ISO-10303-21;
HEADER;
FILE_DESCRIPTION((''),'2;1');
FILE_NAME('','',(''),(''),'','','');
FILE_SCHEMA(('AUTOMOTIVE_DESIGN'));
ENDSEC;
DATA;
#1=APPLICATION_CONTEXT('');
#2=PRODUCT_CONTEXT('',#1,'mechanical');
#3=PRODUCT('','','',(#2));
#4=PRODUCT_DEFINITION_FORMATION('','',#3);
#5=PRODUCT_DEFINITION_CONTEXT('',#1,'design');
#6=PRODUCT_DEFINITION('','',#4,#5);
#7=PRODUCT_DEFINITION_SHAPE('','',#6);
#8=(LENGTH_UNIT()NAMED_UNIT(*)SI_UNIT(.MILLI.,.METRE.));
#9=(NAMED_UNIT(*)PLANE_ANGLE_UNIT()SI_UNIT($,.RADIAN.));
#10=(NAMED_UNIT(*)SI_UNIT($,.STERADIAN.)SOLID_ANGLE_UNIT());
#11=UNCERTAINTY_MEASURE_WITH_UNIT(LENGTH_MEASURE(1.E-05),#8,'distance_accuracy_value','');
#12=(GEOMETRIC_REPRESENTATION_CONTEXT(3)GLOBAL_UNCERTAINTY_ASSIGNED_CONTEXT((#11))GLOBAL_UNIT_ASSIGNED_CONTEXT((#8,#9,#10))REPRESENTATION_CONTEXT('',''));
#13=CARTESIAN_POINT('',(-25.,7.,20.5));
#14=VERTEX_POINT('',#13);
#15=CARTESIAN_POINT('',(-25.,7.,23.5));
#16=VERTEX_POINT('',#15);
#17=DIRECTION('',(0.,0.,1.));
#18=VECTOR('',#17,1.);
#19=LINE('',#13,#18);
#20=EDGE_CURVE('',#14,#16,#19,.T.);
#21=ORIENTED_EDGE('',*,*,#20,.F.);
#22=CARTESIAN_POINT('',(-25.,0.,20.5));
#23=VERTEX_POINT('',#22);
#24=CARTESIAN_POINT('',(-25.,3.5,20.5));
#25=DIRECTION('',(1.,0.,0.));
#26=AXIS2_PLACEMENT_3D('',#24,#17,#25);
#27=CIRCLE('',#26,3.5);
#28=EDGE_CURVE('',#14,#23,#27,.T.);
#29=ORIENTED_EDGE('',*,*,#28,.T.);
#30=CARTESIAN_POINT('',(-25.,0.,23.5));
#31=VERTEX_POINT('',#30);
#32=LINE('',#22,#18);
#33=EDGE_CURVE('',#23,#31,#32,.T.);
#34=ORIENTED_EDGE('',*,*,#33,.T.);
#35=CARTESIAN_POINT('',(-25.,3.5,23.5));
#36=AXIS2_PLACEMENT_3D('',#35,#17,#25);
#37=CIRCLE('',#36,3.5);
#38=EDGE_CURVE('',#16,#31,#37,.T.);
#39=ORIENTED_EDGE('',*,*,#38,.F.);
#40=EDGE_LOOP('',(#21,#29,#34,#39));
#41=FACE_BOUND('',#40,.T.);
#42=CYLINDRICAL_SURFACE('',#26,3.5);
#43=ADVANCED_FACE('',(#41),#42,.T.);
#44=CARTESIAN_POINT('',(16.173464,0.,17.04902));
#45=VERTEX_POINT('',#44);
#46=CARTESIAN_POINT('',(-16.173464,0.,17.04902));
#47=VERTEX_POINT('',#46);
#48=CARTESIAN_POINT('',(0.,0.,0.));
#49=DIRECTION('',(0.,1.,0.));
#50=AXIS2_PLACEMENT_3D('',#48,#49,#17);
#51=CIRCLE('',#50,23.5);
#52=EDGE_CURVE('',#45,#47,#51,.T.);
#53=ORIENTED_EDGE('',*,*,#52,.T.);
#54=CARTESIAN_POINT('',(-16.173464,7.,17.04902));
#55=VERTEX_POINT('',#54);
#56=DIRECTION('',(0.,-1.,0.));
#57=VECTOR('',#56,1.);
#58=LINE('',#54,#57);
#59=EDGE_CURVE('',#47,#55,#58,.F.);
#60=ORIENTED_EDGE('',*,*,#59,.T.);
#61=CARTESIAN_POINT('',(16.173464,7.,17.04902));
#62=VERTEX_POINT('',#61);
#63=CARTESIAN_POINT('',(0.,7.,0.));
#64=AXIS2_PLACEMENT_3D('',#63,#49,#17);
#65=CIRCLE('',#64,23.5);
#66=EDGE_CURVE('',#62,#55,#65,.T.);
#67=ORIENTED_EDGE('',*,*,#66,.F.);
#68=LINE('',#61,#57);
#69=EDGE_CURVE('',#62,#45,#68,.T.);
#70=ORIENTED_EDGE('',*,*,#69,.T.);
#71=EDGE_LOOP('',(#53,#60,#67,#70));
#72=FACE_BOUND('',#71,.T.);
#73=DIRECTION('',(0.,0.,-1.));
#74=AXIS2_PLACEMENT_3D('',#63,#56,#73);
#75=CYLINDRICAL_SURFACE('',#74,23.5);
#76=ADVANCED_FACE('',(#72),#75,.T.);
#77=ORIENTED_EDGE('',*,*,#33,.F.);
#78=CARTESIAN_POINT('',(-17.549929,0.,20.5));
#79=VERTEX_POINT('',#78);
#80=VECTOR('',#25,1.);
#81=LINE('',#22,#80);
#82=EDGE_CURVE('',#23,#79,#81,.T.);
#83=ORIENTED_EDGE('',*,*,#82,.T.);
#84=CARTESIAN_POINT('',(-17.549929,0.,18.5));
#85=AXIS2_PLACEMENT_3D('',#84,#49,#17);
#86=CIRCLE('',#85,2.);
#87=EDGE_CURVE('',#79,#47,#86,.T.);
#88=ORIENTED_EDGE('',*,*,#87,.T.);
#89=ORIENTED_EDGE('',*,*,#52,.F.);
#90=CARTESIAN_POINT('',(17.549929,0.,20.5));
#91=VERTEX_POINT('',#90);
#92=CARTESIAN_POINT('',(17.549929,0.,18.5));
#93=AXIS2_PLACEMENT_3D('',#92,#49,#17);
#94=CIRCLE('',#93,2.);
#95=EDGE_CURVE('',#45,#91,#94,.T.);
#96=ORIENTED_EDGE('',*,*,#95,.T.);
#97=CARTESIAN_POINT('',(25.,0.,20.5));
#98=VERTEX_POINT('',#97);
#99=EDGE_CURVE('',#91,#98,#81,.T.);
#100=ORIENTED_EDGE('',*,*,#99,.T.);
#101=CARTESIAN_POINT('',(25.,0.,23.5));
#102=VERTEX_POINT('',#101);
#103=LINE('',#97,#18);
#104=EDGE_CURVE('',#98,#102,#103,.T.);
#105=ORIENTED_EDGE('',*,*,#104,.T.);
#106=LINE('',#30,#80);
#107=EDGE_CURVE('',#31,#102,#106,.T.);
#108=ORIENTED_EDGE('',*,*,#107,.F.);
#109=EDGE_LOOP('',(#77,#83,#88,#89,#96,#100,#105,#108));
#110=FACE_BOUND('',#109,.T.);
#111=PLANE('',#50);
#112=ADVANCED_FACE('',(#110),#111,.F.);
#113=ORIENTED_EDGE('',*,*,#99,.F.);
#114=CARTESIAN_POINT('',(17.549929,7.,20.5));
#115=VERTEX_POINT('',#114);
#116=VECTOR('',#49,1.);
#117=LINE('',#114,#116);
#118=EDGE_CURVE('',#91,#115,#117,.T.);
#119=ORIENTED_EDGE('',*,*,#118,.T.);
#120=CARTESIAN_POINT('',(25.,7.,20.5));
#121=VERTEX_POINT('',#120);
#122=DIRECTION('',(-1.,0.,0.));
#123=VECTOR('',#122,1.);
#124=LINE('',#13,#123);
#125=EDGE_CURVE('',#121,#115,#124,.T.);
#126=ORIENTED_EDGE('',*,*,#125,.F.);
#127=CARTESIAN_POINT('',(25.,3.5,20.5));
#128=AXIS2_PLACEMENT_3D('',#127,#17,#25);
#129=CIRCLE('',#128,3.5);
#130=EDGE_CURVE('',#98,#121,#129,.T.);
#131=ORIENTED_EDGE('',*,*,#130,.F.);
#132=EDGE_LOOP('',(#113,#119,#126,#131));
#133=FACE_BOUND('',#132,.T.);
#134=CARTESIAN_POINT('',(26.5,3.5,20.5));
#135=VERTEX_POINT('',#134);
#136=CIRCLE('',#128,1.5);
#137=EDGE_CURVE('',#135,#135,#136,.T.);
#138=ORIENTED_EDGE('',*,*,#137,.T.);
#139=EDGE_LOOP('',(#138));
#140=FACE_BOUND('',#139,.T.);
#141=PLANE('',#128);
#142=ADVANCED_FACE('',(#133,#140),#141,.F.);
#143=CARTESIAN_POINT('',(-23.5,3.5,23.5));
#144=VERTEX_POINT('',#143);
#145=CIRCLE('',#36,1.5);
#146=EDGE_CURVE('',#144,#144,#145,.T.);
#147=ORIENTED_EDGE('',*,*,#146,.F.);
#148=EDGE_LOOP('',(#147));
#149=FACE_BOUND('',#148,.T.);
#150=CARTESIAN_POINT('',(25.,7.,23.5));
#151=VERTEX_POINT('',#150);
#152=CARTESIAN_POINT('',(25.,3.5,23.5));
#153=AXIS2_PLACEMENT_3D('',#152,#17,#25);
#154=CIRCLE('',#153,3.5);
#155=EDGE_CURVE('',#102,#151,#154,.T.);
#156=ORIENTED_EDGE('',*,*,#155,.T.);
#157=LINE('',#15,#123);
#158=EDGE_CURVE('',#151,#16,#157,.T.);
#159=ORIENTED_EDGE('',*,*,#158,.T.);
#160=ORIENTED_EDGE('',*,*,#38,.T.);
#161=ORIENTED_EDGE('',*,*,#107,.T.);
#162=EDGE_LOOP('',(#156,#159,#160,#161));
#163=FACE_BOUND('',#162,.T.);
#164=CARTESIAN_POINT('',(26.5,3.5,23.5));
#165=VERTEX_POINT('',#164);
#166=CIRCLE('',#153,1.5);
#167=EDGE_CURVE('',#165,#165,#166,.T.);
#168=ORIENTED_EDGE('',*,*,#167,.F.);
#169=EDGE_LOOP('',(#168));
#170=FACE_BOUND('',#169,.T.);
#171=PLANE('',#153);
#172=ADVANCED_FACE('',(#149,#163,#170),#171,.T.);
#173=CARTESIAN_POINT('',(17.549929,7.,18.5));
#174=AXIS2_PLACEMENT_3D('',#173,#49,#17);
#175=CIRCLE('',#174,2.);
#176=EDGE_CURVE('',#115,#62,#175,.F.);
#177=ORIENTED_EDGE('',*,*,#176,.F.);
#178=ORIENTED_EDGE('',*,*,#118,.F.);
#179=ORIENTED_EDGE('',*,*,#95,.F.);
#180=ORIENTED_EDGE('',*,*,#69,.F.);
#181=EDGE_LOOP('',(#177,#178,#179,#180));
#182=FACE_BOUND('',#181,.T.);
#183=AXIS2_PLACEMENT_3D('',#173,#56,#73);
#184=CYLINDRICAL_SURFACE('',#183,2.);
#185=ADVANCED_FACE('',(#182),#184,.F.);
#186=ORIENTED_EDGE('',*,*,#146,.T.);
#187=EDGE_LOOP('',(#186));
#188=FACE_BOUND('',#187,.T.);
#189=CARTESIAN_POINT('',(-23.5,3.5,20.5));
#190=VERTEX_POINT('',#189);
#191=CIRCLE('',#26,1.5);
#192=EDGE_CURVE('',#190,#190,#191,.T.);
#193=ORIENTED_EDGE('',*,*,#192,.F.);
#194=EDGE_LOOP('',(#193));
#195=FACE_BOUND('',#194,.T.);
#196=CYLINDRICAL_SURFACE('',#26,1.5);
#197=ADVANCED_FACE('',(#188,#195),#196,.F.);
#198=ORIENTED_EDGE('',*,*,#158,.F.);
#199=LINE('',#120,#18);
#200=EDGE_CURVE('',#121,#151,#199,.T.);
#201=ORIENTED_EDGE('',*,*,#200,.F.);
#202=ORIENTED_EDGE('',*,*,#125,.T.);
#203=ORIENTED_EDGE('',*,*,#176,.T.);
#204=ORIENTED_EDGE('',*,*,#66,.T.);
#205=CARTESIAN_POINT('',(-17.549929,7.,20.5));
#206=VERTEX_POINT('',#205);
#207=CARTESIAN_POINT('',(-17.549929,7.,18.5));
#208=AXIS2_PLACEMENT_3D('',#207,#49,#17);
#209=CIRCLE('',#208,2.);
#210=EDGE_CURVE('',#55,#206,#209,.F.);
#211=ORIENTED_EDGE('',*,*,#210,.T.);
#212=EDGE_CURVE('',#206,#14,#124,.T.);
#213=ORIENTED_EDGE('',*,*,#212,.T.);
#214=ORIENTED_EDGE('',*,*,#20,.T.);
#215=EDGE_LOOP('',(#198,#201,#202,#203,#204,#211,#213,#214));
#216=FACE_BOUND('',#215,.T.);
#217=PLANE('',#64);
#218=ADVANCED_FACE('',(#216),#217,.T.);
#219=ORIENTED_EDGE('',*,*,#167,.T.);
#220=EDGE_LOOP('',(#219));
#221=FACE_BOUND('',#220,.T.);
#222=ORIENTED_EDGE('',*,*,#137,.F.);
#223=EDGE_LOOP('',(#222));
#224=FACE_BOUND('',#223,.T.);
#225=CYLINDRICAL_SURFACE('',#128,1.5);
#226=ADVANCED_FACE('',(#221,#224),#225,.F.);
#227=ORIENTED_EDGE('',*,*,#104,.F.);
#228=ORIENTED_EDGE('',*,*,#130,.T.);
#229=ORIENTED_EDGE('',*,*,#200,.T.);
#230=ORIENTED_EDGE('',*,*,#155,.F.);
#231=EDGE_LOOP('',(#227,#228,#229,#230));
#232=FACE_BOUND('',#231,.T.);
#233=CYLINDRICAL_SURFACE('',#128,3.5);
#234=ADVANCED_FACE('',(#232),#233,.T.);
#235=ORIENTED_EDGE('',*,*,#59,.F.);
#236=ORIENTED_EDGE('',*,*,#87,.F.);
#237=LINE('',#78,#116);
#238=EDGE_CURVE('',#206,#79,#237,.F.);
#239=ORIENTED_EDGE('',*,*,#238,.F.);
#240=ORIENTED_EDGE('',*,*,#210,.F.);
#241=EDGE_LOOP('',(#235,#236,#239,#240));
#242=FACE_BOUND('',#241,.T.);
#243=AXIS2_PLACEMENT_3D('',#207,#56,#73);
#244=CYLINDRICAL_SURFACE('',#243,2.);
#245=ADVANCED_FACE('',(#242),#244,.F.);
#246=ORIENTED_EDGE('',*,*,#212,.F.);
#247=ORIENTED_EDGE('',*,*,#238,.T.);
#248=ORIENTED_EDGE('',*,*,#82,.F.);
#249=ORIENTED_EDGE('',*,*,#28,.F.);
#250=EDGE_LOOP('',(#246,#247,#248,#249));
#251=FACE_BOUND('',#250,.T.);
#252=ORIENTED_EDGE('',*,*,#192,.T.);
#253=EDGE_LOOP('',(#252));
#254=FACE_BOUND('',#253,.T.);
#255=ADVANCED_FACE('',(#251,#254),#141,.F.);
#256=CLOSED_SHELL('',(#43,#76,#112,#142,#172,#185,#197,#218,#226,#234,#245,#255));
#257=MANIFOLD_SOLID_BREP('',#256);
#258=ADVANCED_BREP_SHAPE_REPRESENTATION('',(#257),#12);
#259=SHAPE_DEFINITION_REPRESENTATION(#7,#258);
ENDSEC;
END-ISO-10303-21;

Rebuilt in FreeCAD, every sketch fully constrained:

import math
import FreeCAD as App
import Part
import Sketcher


def edges_at(feature, points):
    """Names of the edges that pass closest to the given points."""
    edges = feature.Shape.Edges
    near = lambda p: min(range(len(edges)), key=lambda i: edges[i].distToShape(Part.Vertex(*p))[0])
    return sorted({f"Edge{near(p) + 1}" for p in points})

doc = App.newDocument("Part")
body = doc.addObject("PartDesign::Body", "Body")

# Sketch on XZ plane
sketch1 = body.newObject("Sketcher::SketchObject", "Sketch")
sketch1.AttachmentSupport = (doc.getObject("XZ_Plane"), [""])
sketch1.MapMode = "FlatFace"
sketch1.addGeometry(Part.Circle(App.Vector(0, 0, 0), App.Vector(0, 0, 1), 23.5), False)
sketch1.addConstraint([
    Sketcher.Constraint("Coincident", 0, 3, -1, 1),
    Sketcher.Constraint("Diameter", 0, 47.0),
])
pad1 = body.newObject("PartDesign::Pad", "Pad")
pad1.Profile = sketch1
pad1.Length = 7
pad1.Reversed = True

# Sketch on XY plane
sketch2 = body.newObject("Sketcher::SketchObject", "Sketch001")
sketch2.AttachmentSupport = (doc.getObject("XY_Plane"), [""])
sketch2.MapMode = "FlatFace"
sketch2.AttachmentOffset = App.Placement(App.Vector(0, 0, 23.5), App.Rotation())
sketch2.addGeometry([
    Part.LineSegment(App.Vector(-25, 0, 0), App.Vector(25, 0, 0)),  # 0
    Part.ArcOfCircle(Part.Circle(App.Vector(25, 3.5, 0), App.Vector(0, 0, 1), 3.5), math.radians(-90), math.radians(90)),  # 1
    Part.LineSegment(App.Vector(25, 7, 0), App.Vector(-25, 7, 0)),  # 2
    Part.ArcOfCircle(Part.Circle(App.Vector(-25, 3.5, 0), App.Vector(0, 0, 1), 3.5), math.radians(90), math.radians(270)),  # 3
    Part.Circle(App.Vector(-25, 3.5, 0), App.Vector(0, 0, 1), 1.5),  # 4
    Part.Circle(App.Vector(25, 3.5, 0), App.Vector(0, 0, 1), 1.5),  # 5
], False)
sketch2.addConstraint([
    Sketcher.Constraint("Tangent", 0, 2, 1, 1),
    Sketcher.Constraint("Tangent", 1, 2, 2, 1),
    Sketcher.Constraint("Tangent", 2, 2, 3, 1),
    Sketcher.Constraint("Tangent", 3, 2, 0, 1),
    Sketcher.Constraint("Horizontal", 0),
    Sketcher.Constraint("Horizontal", 2),
    Sketcher.Constraint("Coincident", 4, 3, 3, 3),
    Sketcher.Constraint("Coincident", 5, 3, 1, 3),
    Sketcher.Constraint("Equal", 4, 5),
    Sketcher.Constraint("Symmetric", 0, 2, 3, 2, -1, 1),
    Sketcher.Constraint("Diameter", 4, 3.0),
    Sketcher.Constraint("Radius", 1, 3.5),
    Sketcher.Constraint("DistanceX", 0, 1, 0, 2, 50.0),
])
pad2 = body.newObject("PartDesign::Pad", "Pad001")
pad2.Profile = sketch2
pad2.Length = 3
pad2.Reversed = True
doc.recompute()

fillet = body.newObject("PartDesign::Fillet", "Fillet")
fillet.Base = (pad2, edges_at(pad2, [(-11.489, 3.5, 20.5), (11.489, 3.5, 20.5)]))
fillet.Radius = 2

doc.recompute()
